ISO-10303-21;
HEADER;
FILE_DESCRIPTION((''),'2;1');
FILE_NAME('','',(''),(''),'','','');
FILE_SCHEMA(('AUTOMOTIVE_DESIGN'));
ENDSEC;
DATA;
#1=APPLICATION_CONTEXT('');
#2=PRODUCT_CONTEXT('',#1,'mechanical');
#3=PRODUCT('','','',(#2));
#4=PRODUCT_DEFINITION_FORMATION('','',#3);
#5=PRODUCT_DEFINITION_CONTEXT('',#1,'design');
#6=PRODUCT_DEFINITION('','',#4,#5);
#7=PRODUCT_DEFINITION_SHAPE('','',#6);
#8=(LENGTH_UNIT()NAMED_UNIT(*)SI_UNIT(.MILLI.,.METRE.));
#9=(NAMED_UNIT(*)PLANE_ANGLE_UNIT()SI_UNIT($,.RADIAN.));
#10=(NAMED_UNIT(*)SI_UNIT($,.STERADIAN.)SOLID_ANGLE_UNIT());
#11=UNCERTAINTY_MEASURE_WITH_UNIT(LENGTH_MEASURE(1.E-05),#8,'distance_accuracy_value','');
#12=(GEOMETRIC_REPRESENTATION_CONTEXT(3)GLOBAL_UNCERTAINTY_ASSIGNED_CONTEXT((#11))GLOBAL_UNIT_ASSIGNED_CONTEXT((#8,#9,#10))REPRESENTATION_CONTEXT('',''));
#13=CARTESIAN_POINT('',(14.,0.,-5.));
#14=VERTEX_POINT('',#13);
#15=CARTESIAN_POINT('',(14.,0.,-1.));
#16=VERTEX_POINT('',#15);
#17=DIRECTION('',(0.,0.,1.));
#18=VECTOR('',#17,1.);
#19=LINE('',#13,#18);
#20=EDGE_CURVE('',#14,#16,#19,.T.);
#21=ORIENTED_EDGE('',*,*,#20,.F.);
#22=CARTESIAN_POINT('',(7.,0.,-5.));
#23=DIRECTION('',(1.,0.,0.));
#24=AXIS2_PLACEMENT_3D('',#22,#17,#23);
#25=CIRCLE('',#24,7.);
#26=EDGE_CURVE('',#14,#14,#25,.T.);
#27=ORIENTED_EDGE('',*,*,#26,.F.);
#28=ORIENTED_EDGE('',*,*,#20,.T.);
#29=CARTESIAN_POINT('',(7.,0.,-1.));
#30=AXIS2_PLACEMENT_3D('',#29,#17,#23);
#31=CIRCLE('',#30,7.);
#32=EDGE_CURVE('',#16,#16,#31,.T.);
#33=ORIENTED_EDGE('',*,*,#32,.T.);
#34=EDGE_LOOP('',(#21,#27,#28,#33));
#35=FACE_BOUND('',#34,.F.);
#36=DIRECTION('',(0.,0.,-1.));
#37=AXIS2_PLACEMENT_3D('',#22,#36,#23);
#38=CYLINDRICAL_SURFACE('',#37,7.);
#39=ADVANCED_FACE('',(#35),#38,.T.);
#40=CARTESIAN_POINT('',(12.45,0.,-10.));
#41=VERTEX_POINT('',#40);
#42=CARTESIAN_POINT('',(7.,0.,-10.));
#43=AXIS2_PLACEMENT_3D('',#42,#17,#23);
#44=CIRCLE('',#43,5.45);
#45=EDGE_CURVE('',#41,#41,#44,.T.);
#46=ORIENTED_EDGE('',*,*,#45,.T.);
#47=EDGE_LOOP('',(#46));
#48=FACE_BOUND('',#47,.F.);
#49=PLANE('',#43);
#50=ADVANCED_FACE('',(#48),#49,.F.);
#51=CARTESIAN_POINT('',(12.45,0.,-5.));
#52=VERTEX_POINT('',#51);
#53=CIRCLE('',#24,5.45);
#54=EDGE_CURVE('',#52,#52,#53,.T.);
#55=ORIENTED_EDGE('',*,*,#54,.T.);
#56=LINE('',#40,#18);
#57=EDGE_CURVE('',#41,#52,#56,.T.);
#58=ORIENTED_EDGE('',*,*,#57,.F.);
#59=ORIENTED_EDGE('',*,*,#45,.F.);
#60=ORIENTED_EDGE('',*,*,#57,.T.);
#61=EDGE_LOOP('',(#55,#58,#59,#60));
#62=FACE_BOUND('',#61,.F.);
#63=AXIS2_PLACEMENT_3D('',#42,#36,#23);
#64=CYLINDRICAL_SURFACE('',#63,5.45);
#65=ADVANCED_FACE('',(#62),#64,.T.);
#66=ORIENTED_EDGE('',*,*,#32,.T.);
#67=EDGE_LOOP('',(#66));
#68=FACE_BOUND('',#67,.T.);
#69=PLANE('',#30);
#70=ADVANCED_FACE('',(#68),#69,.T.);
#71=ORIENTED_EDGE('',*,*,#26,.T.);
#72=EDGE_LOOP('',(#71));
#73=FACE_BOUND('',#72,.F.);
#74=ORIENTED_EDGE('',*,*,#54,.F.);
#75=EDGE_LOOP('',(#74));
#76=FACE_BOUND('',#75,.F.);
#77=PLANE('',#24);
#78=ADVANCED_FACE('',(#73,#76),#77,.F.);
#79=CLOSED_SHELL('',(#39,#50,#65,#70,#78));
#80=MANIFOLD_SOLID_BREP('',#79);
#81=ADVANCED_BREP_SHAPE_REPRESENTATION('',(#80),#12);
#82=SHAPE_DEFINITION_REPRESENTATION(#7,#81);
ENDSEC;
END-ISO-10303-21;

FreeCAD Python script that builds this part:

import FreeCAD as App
import Part
import Sketcher
Q = App.Units.Quantity

doc = App.newDocument("Part")
body = doc.addObject("PartDesign::Body", "Body")

sketch1 = body.newObject("Sketcher::SketchObject", "Sketch")
sketch1.AttachmentSupport = (doc.getObject("XY_Plane"), [""])
sketch1.MapMode = "FlatFace"
sketch1.AttachmentOffset = App.Placement(App.Vector(0, 0, -5), App.Rotation())
sketch1.addGeometry(Part.Circle(App.Vector(7, 0, 0), App.Vector(0, 0, 1), 7), False)
sketch1.addConstraint(Sketcher.Constraint("PointOnObject", 0, 3, -1))
sketch1.addConstraint(Sketcher.Constraint("Diameter", 0, Q("14 mm")))
sketch1.addConstraint(Sketcher.Constraint("DistanceX", -1, 1, 0, 3, Q("7 mm")))
pad1 = body.newObject("PartDesign::Pad", "Pad")
pad1.Profile = sketch1
pad1.Length = 4
body2 = doc.addObject("PartDesign::Body", "Body001")

sketch2 = body2.newObject("Sketcher::SketchObject", "Sketch001")
sketch2.AttachmentSupport = (doc.getObject("XY_Plane001"), [""])
sketch2.MapMode = "FlatFace"
sketch2.AttachmentOffset = App.Placement(App.Vector(0, 0, -10), App.Rotation())
sketch2.addGeometry(Part.Circle(App.Vector(7, 0, 0), App.Vector(0, 0, 1), 5), False)
sketch2.addConstraint(Sketcher.Constraint("PointOnObject", 0, 3, -1))
sketch2.addConstraint(Sketcher.Constraint("Diameter", 0, Q("10.9 mm")))
sketch2.addConstraint(Sketcher.Constraint("DistanceX", -1, 1, 0, 3, Q("7 mm")))
pad2 = body2.newObject("PartDesign::Pad", "Pad001")
pad2.Profile = sketch2
pad2.Length = 5
doc.recompute()

boolean = body2.newObject("PartDesign::Boolean", "Boolean")
boolean.Type = "Fuse"
boolean.addObjects([body])

doc.recompute()
